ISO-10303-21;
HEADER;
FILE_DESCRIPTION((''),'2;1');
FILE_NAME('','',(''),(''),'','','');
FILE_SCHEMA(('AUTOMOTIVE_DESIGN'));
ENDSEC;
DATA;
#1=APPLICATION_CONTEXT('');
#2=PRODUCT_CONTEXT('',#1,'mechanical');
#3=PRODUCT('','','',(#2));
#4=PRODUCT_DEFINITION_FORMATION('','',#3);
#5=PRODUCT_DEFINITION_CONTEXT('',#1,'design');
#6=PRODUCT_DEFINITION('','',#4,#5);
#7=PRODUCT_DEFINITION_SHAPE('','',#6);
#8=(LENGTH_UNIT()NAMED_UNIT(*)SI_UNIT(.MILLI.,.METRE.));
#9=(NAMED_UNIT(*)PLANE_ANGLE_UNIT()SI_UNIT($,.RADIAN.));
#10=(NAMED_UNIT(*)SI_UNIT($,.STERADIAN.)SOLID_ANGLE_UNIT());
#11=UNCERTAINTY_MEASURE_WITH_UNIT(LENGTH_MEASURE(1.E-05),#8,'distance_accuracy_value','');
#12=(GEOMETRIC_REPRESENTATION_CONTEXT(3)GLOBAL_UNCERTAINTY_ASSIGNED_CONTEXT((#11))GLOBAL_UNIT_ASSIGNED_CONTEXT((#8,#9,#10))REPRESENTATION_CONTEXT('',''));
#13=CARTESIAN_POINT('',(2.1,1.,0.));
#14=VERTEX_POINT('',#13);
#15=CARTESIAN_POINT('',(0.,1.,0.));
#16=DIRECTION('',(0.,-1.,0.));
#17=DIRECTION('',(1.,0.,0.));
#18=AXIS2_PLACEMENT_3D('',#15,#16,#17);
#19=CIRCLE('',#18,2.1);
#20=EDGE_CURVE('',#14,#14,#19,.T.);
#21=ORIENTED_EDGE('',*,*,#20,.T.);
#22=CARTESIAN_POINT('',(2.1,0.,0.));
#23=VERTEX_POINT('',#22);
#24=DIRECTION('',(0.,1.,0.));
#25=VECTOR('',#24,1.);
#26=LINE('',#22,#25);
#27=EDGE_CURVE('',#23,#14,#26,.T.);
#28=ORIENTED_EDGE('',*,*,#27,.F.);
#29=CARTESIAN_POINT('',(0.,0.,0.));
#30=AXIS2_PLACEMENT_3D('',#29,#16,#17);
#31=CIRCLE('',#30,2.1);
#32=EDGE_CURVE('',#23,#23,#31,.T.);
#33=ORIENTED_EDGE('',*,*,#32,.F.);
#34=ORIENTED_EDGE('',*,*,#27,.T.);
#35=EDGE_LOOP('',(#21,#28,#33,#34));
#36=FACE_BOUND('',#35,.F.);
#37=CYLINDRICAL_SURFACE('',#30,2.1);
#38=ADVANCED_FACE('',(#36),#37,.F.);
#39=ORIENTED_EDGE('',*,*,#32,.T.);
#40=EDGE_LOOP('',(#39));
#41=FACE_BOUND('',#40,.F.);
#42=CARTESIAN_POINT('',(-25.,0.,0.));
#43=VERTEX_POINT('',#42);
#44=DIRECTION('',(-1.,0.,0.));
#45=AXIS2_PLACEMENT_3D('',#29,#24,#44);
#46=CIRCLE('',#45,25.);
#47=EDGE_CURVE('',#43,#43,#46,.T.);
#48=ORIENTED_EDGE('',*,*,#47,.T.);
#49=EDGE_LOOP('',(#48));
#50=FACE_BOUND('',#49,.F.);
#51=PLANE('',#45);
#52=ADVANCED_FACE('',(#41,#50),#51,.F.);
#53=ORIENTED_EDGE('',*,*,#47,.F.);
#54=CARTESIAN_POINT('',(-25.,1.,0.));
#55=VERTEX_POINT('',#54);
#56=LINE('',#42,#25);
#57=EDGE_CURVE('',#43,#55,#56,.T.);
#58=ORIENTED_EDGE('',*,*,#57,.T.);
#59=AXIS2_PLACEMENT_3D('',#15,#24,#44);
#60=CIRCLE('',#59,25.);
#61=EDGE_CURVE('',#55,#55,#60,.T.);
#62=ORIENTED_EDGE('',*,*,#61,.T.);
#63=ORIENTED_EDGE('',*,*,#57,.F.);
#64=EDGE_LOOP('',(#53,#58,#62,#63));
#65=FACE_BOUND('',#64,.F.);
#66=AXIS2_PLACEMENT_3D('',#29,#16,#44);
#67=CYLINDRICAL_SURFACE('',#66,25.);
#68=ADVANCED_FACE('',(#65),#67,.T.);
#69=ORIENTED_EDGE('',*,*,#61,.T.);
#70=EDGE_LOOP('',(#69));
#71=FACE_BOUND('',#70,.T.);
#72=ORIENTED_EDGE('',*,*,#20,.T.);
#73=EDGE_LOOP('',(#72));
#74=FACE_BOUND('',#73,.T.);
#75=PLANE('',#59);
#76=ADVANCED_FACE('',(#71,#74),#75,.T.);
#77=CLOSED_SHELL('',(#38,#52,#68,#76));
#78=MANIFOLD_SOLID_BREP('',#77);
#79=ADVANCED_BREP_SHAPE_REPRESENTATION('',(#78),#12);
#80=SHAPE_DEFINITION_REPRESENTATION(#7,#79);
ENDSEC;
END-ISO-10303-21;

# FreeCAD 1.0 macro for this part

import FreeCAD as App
import Part
import Sketcher
from FreeCAD import Vector
Q = App.Units.Quantity

doc = App.newDocument("Part")
body = doc.addObject("PartDesign::Body", "Body")

# Sketch on XZ plane
sketch1 = doc.addObject("Sketcher::SketchObject", "Sketch")
body.addObject(sketch1)
sketch1.AttachmentSupport = (doc.XZ_Plane, [""])
sketch1.MapMode = "FlatFace"
sketch1.addGeometry(Part.Circle(Vector(0, 0, 0), Vector(0, 0, 1), 25), False)
sketch1.addConstraint(Sketcher.Constraint("Coincident", 0, 3, -1, 1))
sketch1.addConstraint(Sketcher.Constraint("Diameter", 0, Q("50 mm")))
pad1 = doc.addObject("PartDesign::Pad", "Pad")
body.addObject(pad1)
pad1.Profile = sketch1
pad1.Length = 1
pad1.Reversed = True

# Sketch on XZ plane
sketch2 = doc.addObject("Sketcher::SketchObject", "Sketch001")
body.addObject(sketch2)
sketch2.AttachmentSupport = (doc.XZ_Plane, [""])
sketch2.MapMode = "FlatFace"
sketch2.addGeometry(Part.Circle(Vector(0, 0, 0), Vector(0, 0, 1), 2.1), False)
sketch2.addConstraint(Sketcher.Constraint("Coincident", 0, 3, -1, 1))
sketch2.addConstraint(Sketcher.Constraint("Diameter", 0, Q("4.2 mm")))
pocket1 = doc.addObject("PartDesign::Pocket", "Pocket")
body.addObject(pocket1)
pocket1.Profile = sketch2
pocket1.Type = "ThroughAll"

doc.recompute()
